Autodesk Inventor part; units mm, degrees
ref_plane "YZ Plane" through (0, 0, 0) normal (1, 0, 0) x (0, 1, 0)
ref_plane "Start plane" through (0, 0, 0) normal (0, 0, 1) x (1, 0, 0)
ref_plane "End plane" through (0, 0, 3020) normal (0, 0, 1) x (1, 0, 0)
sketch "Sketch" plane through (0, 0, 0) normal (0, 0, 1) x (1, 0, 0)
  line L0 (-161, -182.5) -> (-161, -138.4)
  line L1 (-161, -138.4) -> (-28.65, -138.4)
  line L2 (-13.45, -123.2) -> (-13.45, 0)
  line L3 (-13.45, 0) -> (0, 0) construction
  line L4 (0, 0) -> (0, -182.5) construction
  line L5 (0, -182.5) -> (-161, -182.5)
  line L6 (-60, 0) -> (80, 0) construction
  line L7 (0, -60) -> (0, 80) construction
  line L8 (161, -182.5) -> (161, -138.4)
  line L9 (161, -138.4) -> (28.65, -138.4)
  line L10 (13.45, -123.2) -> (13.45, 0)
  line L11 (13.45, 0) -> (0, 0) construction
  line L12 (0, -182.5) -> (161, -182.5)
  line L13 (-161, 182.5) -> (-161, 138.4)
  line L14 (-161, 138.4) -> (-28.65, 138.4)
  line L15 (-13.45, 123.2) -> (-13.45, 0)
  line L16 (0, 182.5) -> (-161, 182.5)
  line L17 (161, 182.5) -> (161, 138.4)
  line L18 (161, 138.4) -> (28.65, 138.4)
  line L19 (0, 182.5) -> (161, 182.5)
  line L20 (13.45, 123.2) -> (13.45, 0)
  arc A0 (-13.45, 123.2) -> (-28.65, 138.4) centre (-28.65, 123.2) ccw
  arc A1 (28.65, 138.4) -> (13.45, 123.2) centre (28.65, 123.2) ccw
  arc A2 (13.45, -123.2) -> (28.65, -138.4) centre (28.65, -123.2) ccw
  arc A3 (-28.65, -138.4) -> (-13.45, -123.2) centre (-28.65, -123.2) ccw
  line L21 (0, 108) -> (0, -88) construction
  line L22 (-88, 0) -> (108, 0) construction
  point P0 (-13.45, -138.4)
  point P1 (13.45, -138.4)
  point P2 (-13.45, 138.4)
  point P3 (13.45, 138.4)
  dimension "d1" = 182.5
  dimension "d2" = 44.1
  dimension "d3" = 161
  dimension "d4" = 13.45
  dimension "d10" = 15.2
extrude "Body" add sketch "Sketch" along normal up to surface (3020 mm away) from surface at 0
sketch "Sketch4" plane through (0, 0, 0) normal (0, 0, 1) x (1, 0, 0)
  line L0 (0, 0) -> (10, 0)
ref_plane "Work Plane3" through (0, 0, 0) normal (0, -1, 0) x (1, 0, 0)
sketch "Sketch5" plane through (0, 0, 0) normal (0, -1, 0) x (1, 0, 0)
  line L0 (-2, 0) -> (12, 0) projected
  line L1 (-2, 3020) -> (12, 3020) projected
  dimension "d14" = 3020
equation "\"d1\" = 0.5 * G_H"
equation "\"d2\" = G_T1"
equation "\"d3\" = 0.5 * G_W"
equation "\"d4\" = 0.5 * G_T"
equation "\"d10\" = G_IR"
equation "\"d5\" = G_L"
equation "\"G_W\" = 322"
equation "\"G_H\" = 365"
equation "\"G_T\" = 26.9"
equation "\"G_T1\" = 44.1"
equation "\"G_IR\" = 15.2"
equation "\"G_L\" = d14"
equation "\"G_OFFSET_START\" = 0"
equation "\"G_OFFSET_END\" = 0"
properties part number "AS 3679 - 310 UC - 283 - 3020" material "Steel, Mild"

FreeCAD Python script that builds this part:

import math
import FreeCAD as App
import Part
import Sketcher
Q = App.Units.Quantity

doc = App.newDocument("Part")
params = doc.addObject("Spreadsheet::Sheet", "Params")
for row, (alias, value) in enumerate([
    ("sketch1_radius", "15.2 mm"),
    ("sketch1_height", "44.1 mm"),
    ("pad1_length", "3020 mm"),
], start=1):
    params.set(f"A{row}", alias)
    params.set(f"B{row}", "=" + value)
    params.setAlias(f"B{row}", alias)

body = doc.addObject("PartDesign::Body", "Body")

sketch1 = body.newObject("Sketcher::SketchObject", "Sketch")
sketch1.AttachmentSupport = (doc.getObject("XY_Plane"), [""])
sketch1.MapMode = "FlatFace"
sketch1.addGeometry([
    Part.LineSegment(App.Vector(-161, -138, 0), App.Vector(-161, -182, 0)),
    Part.LineSegment(App.Vector(-161, -182, 0), App.Vector(161, -182, 0)),
    Part.LineSegment(App.Vector(161, -182, 0), App.Vector(161, -138, 0)),
    Part.LineSegment(App.Vector(161, -138, 0), App.Vector(29, -138, 0)),
    Part.ArcOfCircle(Part.Circle(App.Vector(29, -123, 0), App.Vector(0, 0, 1), 15), math.radians(180), math.radians(270)),
    Part.LineSegment(App.Vector(13, -123, 0), App.Vector(13, 123, 0)),
    Part.ArcOfCircle(Part.Circle(App.Vector(29, 123, 0), App.Vector(0, 0, 1), 15), math.radians(90), math.radians(180)),
    Part.LineSegment(App.Vector(29, 138, 0), App.Vector(161, 138, 0)),
    Part.LineSegment(App.Vector(161, 138, 0), App.Vector(161, 182, 0)),
    Part.LineSegment(App.Vector(161, 182, 0), App.Vector(-161, 182, 0)),
    Part.LineSegment(App.Vector(-161, 182, 0), App.Vector(-161, 138, 0)),
    Part.LineSegment(App.Vector(-161, 138, 0), App.Vector(-29, 138, 0)),
    Part.ArcOfCircle(Part.Circle(App.Vector(-29, 123, 0), App.Vector(0, 0, 1), 15), math.radians(0), math.radians(90)),
    Part.LineSegment(App.Vector(-13, 123, 0), App.Vector(-13, -123, 0)),
    Part.ArcOfCircle(Part.Circle(App.Vector(-29, -123, 0), App.Vector(0, 0, 1), 15), math.radians(-90), math.radians(0)),
    Part.LineSegment(App.Vector(-29, -138, 0), App.Vector(-161, -138, 0)),
], False)
sketch1.addConstraint([
    Sketcher.Constraint("Coincident", 0, 2, 1, 1),
    Sketcher.Constraint("Coincident", 1, 2, 2, 1),
    Sketcher.Constraint("Coincident", 2, 2, 3, 1),
    Sketcher.Constraint("Tangent", 3, 2, 4, 2),
    Sketcher.Constraint("Tangent", 4, 1, 5, 1),
    Sketcher.Constraint("Tangent", 5, 2, 6, 2),
    Sketcher.Constraint("Tangent", 6, 1, 7, 1),
    Sketcher.Constraint("Coincident", 7, 2, 8, 1),
    Sketcher.Constraint("Coincident", 8, 2, 9, 1),
    Sketcher.Constraint("Coincident", 9, 2, 10, 1),
    Sketcher.Constraint("Coincident", 10, 2, 11, 1),
    Sketcher.Constraint("Tangent", 11, 2, 12, 2),
    Sketcher.Constraint("Tangent", 12, 1, 13, 1),
    Sketcher.Constraint("Tangent", 13, 2, 14, 2),
    Sketcher.Constraint("Tangent", 14, 1, 15, 1),
    Sketcher.Constraint("Coincident", 15, 2, 0, 1),
    Sketcher.Constraint("Vertical", 0),
    Sketcher.Constraint("Horizontal", 1),
    Sketcher.Constraint("Vertical", 2),
    Sketcher.Constraint("Horizontal", 3),
    Sketcher.Constraint("Vertical", 5),
    Sketcher.Constraint("Horizontal", 7),
    Sketcher.Constraint("Vertical", 8),
    Sketcher.Constraint("Horizontal", 9),
    Sketcher.Constraint("Vertical", 10),
    Sketcher.Constraint("Horizontal", 11),
    Sketcher.Constraint("Vertical", 13),
    Sketcher.Constraint("Horizontal", 15),
    Sketcher.Constraint("Equal", 4, 6),
    Sketcher.Constraint("Equal", 6, 12),
    Sketcher.Constraint("Equal", 12, 14),
    Sketcher.Constraint("Symmetric", 4, 3, 12, 3, -1, 1),
    Sketcher.Constraint("Symmetric", 0, 2, 8, 2, -1, 1),
    Sketcher.Constraint("Symmetric", 7, 2, 10, 2, -2),
    Sketcher.Constraint("Symmetric", 2, 2, 15, 2, -2),
    Sketcher.Constraint("Radius", 4, Q("15.2 mm")),
    Sketcher.Constraint("DistanceY", 0, 2, 0, 1, Q("44.1 mm")),
    Sketcher.Constraint("DistanceX", 0, 2, -1, 1, Q("161 mm")),
    Sketcher.Constraint("DistanceY", 0, 2, -1, 1, Q("182.5 mm")),
    Sketcher.Constraint("DistanceX", -1, 1, 4, 1, Q("13.45 mm")),
])
sketch1.setExpression("Constraints[35]", "Params.sketch1_radius")
sketch1.setExpression("Constraints[36]", "Params.sketch1_height")
pad1 = body.newObject("PartDesign::Pad", "Pad")
pad1.Profile = sketch1
pad1.setExpression("Length", "Params.pad1_length")

doc.recompute()
